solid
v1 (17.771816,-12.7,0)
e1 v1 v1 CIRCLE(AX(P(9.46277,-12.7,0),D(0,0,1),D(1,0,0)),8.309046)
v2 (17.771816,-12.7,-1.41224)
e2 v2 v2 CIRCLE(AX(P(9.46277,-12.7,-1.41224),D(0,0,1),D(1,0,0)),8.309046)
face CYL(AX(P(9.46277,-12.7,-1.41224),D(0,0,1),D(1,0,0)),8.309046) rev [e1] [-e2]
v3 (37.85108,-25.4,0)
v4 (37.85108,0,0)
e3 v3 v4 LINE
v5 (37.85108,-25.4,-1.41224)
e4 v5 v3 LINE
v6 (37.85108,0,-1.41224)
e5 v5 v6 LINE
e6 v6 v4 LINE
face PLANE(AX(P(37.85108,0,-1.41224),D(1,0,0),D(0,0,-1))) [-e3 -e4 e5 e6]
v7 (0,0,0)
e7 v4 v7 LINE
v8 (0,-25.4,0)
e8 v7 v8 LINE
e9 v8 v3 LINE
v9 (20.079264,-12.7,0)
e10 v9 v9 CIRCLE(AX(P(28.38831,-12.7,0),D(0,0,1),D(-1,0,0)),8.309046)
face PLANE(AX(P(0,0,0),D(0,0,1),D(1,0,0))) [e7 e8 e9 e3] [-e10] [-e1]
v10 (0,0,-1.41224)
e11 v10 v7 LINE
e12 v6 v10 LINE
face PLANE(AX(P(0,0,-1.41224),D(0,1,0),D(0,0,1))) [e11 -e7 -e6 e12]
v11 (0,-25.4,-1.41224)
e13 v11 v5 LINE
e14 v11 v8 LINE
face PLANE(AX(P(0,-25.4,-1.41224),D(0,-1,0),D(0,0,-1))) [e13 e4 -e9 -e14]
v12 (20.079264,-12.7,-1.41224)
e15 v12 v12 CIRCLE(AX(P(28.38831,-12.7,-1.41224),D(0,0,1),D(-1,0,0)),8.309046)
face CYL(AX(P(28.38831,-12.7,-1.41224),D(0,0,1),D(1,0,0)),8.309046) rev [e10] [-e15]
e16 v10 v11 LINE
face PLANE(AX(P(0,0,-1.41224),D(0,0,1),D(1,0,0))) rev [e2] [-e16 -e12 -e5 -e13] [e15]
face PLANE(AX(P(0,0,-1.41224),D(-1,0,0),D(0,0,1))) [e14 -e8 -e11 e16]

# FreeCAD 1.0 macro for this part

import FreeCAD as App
import Part
import Sketcher
Q = App.Units.Quantity

doc = App.newDocument("Part")
body = doc.addObject("PartDesign::Body", "Body")

sketch1 = body.newObject("Sketcher::SketchObject", "Sketch")
sketch1.AttachmentSupport = (doc.getObject("XY_Plane"), [""])
sketch1.MapMode = "FlatFace"
sketch1.addGeometry(Part.LineSegment(App.Vector(0, 0, 0), App.Vector(0, -25, 0)), False)
sketch1.addGeometry(Part.LineSegment(App.Vector(0, -25, 0), App.Vector(38, -25, 0)), False)
sketch1.addGeometry(Part.LineSegment(App.Vector(38, -25, 0), App.Vector(38, 0, 0)), False)
sketch1.addGeometry(Part.LineSegment(App.Vector(38, 0, 0), App.Vector(0, 0, 0)), False)
sketch1.addGeometry(Part.Circle(App.Vector(9, -13, 0), App.Vector(0, 0, 1), 8), False)
sketch1.addGeometry(Part.Circle(App.Vector(28, -13, 0), App.Vector(0, 0, 1), 8), False)
sketch1.addConstraint(Sketcher.Constraint("Coincident", 0, 2, 1, 1))
sketch1.addConstraint(Sketcher.Constraint("Coincident", 1, 2, 2, 1))
sketch1.addConstraint(Sketcher.Constraint("Coincident", 2, 2, 3, 1))
sketch1.addConstraint(Sketcher.Constraint("Coincident", 3, 2, 0, 1))
sketch1.addConstraint(Sketcher.Constraint("Vertical", 0))
sketch1.addConstraint(Sketcher.Constraint("Horizontal", 1))
sketch1.addConstraint(Sketcher.Constraint("Vertical", 2))
sketch1.addConstraint(Sketcher.Constraint("Horizontal", 3))
sketch1.addConstraint(Sketcher.Constraint("Coincident", 3, 2, -1, 1))
sketch1.addConstraint(Sketcher.Constraint("Equal", 4, 5))
sketch1.addConstraint(Sketcher.Constraint("Horizontal", 4, 3, 5, 3))
sketch1.addConstraint(Sketcher.Constraint("DistanceY", 0, 2, 0, 1, Q("1 in")))
sketch1.addConstraint(Sketcher.Constraint("DistanceY", 4, 3, -1, 1, Q("0.5 in")))
sketch1.addConstraint(Sketcher.Constraint("Diameter", 4, Q("16.618092 mm")))
sketch1.addConstraint(Sketcher.Constraint("DistanceX", 1, 1, 1, 2, Q("1.4902 in")))
sketch1.addConstraint(Sketcher.Constraint("DistanceX", 4, 3, 5, 3, Q("0.7451 in")))
sketch1.addConstraint(Sketcher.Constraint("DistanceX", -1, 1, 4, 3, Q("9.46277 mm")))
pad1 = body.newObject("PartDesign::Pad", "Pad")
pad1.Profile = sketch1
pad1.Length = Q("0.0556 in")
pad1.Reversed = True

doc.recompute()
